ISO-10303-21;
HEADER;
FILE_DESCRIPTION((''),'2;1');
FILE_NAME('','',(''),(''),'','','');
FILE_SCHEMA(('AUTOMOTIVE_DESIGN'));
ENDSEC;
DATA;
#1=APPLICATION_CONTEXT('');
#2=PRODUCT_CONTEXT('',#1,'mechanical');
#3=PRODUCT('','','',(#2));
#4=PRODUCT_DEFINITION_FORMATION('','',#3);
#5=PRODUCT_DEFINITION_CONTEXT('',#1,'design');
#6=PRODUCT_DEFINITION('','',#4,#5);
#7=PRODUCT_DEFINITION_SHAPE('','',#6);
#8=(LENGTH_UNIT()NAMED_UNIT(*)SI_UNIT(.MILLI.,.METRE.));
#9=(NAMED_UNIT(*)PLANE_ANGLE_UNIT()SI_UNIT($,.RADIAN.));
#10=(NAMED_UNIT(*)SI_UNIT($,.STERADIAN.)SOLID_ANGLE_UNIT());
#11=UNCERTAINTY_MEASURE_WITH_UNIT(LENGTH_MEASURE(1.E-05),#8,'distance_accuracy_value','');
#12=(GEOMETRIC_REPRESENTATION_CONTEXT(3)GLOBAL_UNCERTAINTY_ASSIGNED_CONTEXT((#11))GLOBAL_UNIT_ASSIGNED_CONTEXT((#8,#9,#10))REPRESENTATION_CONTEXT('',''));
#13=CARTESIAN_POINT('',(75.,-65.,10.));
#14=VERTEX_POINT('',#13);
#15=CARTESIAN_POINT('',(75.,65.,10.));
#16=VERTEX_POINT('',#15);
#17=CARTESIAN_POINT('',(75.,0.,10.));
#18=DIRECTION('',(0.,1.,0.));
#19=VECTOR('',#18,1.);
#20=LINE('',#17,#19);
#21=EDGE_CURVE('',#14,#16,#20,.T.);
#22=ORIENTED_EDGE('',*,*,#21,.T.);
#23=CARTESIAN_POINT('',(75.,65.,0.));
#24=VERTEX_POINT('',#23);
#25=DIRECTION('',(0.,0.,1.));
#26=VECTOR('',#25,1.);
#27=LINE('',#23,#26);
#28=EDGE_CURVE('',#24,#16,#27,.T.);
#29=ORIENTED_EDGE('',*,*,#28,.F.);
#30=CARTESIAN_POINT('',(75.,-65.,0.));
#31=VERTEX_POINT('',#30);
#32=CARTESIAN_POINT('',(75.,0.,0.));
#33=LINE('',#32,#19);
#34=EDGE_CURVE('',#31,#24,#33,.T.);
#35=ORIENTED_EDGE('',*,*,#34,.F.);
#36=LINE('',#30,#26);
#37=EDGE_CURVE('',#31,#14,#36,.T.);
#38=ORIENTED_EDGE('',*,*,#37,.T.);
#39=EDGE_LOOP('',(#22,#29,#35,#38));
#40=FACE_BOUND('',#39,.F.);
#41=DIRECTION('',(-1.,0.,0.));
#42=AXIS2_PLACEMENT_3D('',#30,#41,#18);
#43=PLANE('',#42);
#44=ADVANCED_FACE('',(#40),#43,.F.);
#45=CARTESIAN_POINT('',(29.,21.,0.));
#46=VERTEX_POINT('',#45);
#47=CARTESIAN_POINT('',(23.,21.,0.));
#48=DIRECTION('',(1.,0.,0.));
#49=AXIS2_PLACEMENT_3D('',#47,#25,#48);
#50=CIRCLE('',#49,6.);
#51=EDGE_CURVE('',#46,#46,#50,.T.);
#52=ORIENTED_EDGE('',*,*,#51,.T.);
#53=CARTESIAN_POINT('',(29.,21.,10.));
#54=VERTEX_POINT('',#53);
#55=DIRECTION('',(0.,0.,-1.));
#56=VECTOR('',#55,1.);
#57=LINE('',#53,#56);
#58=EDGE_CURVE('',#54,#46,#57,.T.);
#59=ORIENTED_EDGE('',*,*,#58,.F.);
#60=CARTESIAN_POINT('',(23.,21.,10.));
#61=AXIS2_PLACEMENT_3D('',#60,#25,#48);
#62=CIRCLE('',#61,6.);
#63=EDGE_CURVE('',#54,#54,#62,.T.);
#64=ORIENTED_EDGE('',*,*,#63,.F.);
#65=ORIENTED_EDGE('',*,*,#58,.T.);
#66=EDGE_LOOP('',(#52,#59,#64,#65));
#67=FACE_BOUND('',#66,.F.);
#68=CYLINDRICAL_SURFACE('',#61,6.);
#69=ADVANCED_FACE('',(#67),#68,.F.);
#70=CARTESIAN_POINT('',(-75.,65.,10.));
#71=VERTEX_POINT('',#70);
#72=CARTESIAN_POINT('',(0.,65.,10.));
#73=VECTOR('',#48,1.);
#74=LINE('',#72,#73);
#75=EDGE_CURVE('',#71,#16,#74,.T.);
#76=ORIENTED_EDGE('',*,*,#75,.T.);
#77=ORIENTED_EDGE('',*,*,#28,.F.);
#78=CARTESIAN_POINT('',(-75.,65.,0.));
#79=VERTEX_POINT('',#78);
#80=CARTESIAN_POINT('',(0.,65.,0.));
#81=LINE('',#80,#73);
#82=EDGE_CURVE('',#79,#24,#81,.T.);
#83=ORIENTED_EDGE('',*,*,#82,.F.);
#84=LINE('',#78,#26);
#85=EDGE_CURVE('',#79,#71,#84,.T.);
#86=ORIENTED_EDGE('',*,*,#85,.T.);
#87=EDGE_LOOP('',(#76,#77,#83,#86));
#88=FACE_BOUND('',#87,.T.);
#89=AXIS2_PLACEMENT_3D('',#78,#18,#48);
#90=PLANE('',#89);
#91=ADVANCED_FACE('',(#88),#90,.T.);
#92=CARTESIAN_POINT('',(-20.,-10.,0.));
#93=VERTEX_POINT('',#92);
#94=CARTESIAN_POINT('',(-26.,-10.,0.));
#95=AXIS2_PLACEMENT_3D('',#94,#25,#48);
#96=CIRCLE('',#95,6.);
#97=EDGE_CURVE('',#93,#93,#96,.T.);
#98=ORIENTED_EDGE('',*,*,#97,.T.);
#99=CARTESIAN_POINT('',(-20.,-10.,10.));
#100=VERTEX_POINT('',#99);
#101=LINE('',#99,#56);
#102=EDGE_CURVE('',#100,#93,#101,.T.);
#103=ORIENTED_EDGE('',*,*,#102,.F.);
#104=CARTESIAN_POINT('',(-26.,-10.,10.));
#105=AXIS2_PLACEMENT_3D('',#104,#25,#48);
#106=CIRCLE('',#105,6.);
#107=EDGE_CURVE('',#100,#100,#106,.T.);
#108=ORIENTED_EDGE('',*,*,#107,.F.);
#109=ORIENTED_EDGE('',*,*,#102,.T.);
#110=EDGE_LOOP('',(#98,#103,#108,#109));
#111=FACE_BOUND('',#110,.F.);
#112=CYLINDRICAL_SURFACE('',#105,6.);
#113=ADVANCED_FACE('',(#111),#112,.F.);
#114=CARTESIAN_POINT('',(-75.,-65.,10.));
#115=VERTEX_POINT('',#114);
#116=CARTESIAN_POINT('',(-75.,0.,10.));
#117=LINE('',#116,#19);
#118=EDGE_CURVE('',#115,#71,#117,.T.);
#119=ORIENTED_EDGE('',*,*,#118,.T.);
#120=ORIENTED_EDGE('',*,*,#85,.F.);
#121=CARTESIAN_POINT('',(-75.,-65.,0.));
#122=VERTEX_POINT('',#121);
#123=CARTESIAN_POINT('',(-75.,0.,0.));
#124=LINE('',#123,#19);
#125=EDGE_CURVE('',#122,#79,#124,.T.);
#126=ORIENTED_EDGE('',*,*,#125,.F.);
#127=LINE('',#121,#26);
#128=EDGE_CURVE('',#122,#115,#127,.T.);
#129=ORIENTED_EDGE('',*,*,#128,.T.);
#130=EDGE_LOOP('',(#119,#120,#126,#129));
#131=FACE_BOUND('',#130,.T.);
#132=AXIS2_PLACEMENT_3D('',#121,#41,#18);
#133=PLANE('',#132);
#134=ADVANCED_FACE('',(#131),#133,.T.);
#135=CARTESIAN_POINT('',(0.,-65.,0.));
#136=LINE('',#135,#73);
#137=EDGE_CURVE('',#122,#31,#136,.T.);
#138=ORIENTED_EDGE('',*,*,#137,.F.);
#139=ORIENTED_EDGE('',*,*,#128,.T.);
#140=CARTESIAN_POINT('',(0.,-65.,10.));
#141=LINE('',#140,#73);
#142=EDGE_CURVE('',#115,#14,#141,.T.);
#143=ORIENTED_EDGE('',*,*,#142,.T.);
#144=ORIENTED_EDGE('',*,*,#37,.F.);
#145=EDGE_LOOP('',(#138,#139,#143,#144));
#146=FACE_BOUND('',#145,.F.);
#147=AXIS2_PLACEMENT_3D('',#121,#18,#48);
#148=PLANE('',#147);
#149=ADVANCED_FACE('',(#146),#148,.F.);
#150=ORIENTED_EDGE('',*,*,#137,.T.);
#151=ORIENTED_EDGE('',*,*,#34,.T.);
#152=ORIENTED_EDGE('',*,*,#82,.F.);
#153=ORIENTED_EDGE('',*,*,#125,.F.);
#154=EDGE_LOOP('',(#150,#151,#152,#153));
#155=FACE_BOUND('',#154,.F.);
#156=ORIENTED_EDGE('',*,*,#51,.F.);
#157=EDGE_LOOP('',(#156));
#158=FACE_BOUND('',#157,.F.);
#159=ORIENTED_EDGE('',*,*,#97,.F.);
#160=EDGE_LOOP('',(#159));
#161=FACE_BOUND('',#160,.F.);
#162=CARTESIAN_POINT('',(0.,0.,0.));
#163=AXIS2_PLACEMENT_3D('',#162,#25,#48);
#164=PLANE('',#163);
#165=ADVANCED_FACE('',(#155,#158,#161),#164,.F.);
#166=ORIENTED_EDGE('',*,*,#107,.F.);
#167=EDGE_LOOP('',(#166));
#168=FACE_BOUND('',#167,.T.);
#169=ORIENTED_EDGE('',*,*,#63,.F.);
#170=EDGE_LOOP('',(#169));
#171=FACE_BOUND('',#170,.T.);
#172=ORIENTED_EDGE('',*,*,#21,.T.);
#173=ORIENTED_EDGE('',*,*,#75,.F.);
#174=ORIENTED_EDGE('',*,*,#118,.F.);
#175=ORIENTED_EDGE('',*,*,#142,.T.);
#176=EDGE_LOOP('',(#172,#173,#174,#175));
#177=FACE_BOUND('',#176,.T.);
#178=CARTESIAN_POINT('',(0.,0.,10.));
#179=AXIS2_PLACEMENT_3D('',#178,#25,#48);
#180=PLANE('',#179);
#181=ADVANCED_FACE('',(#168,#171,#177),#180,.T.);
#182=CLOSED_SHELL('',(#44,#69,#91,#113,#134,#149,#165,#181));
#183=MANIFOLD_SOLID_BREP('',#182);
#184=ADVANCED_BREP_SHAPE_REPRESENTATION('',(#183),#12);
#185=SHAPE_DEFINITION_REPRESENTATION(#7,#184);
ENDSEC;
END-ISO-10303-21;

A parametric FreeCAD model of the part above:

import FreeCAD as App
import Part
import Sketcher
from FreeCAD import Vector
Q = App.Units.Quantity


def add_polygon(sketch, points):
    """Adds a closed chain of lines whose ends are joined by coincident constraints."""
    first, n = sketch.GeometryCount, len(points)
    for a, b in zip(points, points[1:] + points[:1]):
        sketch.addGeometry(Part.LineSegment(App.Vector(*a, 0), App.Vector(*b, 0)), False)
    for i in range(n):
        sketch.addConstraint(Sketcher.Constraint("Coincident", first + i, 2, first + (i + 1) % n, 1))

doc = App.newDocument("Part")
body = doc.addObject("PartDesign::Body", "Body")

sketch1 = doc.addObject("Sketcher::SketchObject", "Sketch")
body.addObject(sketch1)
sketch1.AttachmentSupport = (doc.XY_Plane, [""])
sketch1.MapMode = "FlatFace"
add_polygon(sketch1, [(-75, 65), (-75, -65), (75, -65), (75, 65)])
sketch1.addConstraint(Sketcher.Constraint("Vertical", 0))
sketch1.addConstraint(Sketcher.Constraint("Horizontal", 1))
sketch1.addConstraint(Sketcher.Constraint("Vertical", 2))
sketch1.addConstraint(Sketcher.Constraint("Horizontal", 3))
sketch1.addConstraint(Sketcher.Constraint("Symmetric", 0, 2, 2, 2, -1, 1))
sketch1.addConstraint(Sketcher.Constraint("DistanceX", 1, 1, 1, 2, Q("150 mm")))
sketch1.addConstraint(Sketcher.Constraint("DistanceY", 0, 2, 0, 1, Q("130 mm")))
pad1 = doc.addObject("PartDesign::Pad", "Pad")
body.addObject(pad1)
pad1.Profile = sketch1
pad1.Length = 10

sketch2 = doc.addObject("Sketcher::SketchObject", "Sketch001")
body.addObject(sketch2)
sketch2.AttachmentSupport = (doc.XY_Plane, [""])
sketch2.MapMode = "FlatFace"
sketch2.AttachmentOffset = App.Placement(Vector(0, 0, 10), App.Rotation())
sketch2.addGeometry(Part.Circle(Vector(23, 21, 0), Vector(0, 0, 1), 6), False)
sketch2.addGeometry(Part.Circle(Vector(-26, -10, 0), Vector(0, 0, 1), 6), False)
sketch2.addConstraint(Sketcher.Constraint("Equal", 0, 1))
sketch2.addConstraint(Sketcher.Constraint("Diameter", 0, Q("12 mm")))
sketch2.addConstraint(Sketcher.Constraint("DistanceX", -1, 1, 0, 3, Q("23 mm")))
sketch2.addConstraint(Sketcher.Constraint("DistanceY", -1, 1, 0, 3, Q("21 mm")))
sketch2.addConstraint(Sketcher.Constraint("DistanceX", 1, 3, -1, 1, Q("26 mm")))
sketch2.addConstraint(Sketcher.Constraint("DistanceY", 1, 3, -1, 1, Q("10 mm")))
pocket1 = doc.addObject("PartDesign::Pocket", "Pocket")
body.addObject(pocket1)
pocket1.Profile = sketch2
pocket1.Type = "ThroughAll"

doc.recompute()
